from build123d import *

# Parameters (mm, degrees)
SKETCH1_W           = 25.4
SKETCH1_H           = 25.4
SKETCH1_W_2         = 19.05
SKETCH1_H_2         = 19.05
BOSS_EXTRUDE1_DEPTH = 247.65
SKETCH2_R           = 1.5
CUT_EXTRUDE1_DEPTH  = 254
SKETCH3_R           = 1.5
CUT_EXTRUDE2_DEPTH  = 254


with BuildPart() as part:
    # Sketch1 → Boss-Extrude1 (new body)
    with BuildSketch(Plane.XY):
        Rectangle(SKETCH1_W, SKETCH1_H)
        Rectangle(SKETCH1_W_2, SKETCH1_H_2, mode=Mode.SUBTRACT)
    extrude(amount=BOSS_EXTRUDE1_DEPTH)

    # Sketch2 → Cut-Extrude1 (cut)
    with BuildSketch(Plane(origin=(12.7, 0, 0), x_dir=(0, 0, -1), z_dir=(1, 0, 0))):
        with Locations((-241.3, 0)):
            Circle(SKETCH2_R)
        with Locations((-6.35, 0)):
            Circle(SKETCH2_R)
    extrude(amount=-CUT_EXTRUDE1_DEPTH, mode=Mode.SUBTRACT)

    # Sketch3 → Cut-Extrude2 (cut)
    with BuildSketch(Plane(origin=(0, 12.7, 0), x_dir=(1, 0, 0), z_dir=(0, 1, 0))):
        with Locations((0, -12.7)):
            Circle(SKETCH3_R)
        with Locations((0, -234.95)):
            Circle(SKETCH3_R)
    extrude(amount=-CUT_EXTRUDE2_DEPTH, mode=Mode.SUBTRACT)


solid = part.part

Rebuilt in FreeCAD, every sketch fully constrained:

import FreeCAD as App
import Part
import Sketcher
from FreeCAD import Vector
Q = App.Units.Quantity

doc = App.newDocument("Part")
params = doc.addObject("Spreadsheet::Sheet", "Params")
for row, (alias, value) in enumerate([
    ("sketch1_width", "1 in"),
    ("sketch1_width2", "0.75 in"),
    ("pad1_length", "9.75 in"),
    ("pocket1_length", "10 in"),
    ("pocket2_length", "10 in"),
], start=1):
    params.set(f"A{row}", alias)
    params.set(f"B{row}", "=" + value)
    params.setAlias(f"B{row}", alias)

body = doc.addObject("PartDesign::Body", "Body")

sketch1 = body.newObject("Sketcher::SketchObject", "Sketch")
sketch1.AttachmentSupport = (doc.getObject("XY_Plane"), [""])
sketch1.MapMode = "FlatFace"
sketch1.addGeometry([
    Part.LineSegment(Vector(-13, 13, 0), Vector(-13, -13, 0)),
    Part.LineSegment(Vector(-13, -13, 0), Vector(13, -13, 0)),
    Part.LineSegment(Vector(13, -13, 0), Vector(13, 13, 0)),
    Part.LineSegment(Vector(13, 13, 0), Vector(-13, 13, 0)),
    Part.LineSegment(Vector(10, -10, 0), Vector(-10, -10, 0)),
    Part.LineSegment(Vector(-10, -10, 0), Vector(-10, 10, 0)),
    Part.LineSegment(Vector(-10, 10, 0), Vector(10, 10, 0)),
    Part.LineSegment(Vector(10, 10, 0), Vector(10, -10, 0)),
], False)
sketch1.addConstraint([
    Sketcher.Constraint("Coincident", 0, 2, 1, 1),
    Sketcher.Constraint("Coincident", 1, 2, 2, 1),
    Sketcher.Constraint("Coincident", 2, 2, 3, 1),
    Sketcher.Constraint("Coincident", 3, 2, 0, 1),
    Sketcher.Constraint("Coincident", 4, 2, 5, 1),
    Sketcher.Constraint("Coincident", 5, 2, 6, 1),
    Sketcher.Constraint("Coincident", 6, 2, 7, 1),
    Sketcher.Constraint("Coincident", 7, 2, 4, 1),
    Sketcher.Constraint("Vertical", 0),
    Sketcher.Constraint("Horizontal", 1),
    Sketcher.Constraint("Vertical", 2),
    Sketcher.Constraint("Horizontal", 3),
    Sketcher.Constraint("Horizontal", 4),
    Sketcher.Constraint("Vertical", 5),
    Sketcher.Constraint("Horizontal", 6),
    Sketcher.Constraint("Vertical", 7),
    Sketcher.Constraint("Symmetric", 0, 2, 2, 2, -1, 1),
    Sketcher.Constraint("Symmetric", 4, 2, 6, 2, -1, 1),
    Sketcher.Constraint("Equal", 3, 0),
    Sketcher.Constraint("Equal", 6, 5),
    Sketcher.Constraint("DistanceX", 1, 1, 1, 2, Q("1 in")),
    Sketcher.Constraint("DistanceX", 4, 2, 4, 1, Q("0.75 in")),
])
sketch1.setExpression("Constraints[20]", "Params.sketch1_width")
sketch1.setExpression("Constraints[21]", "Params.sketch1_width2")
pad1 = body.newObject("PartDesign::Pad", "Pad")
pad1.Profile = sketch1
pad1.setExpression("Length", "Params.pad1_length")

sketch2 = body.newObject("Sketcher::SketchObject", "Sketch001")
sketch2.AttachmentSupport = (doc.getObject("YZ_Plane"), [""])
sketch2.MapMode = "FlatFace"
sketch2.AttachmentOffset = App.Placement(Vector(0, 0, 0.5 * 25.4), App.Rotation())
sketch2.addGeometry([
    Part.Circle(Vector(0, 241.3, 0), Vector(0, 0, 1), 1.5),
    Part.Circle(Vector(0, 6.3, 0), Vector(0, 0, 1), 1.5),
], False)
sketch2.addConstraint([
    Sketcher.Constraint("Equal", 0, 1),
    Sketcher.Constraint("PointOnObject", 0, 3, -2),
    Sketcher.Constraint("PointOnObject", 1, 3, -2),
    Sketcher.Constraint("DistanceY", -1, 1, 0, 3, Q("9.5 in")),
    Sketcher.Constraint("Diameter", 0, Q("3 mm")),
    Sketcher.Constraint("DistanceY", -1, 1, 1, 3, Q("0.25 in")),
])
pocket1 = body.newObject("PartDesign::Pocket", "Pocket")
pocket1.Profile = sketch2
pocket1.setExpression("Length", "Params.pocket1_length")

sketch3 = body.newObject("Sketcher::SketchObject", "Sketch002")
sketch3.AttachmentSupport = (doc.getObject("XZ_Plane"), [""])
sketch3.MapMode = "FlatFace"
sketch3.AttachmentOffset = App.Placement(Vector(0, 0, -0.5 * 25.4), App.Rotation())
sketch3.addGeometry([
    Part.Circle(Vector(0, 12.7, 0), Vector(0, 0, 1), 1.5),
    Part.Circle(Vector(0, 234.9, 0), Vector(0, 0, 1), 1.5),
], False)
sketch3.addConstraint([
    Sketcher.Constraint("Equal", 0, 1),
    Sketcher.Constraint("PointOnObject", 0, 3, -2),
    Sketcher.Constraint("PointOnObject", 1, 3, -2),
    Sketcher.Constraint("DistanceY", -1, 1, 0, 3, Q("0.5 in")),
    Sketcher.Constraint("Diameter", 0, Q("3 mm")),
    Sketcher.Constraint("DistanceY", -1, 1, 1, 3, Q("9.25 in")),
])
pocket2 = body.newObject("PartDesign::Pocket", "Pocket001")
pocket2.Profile = sketch3
pocket2.setExpression("Length", "Params.pocket2_length")
pocket2.Reversed = True

doc.recompute()
